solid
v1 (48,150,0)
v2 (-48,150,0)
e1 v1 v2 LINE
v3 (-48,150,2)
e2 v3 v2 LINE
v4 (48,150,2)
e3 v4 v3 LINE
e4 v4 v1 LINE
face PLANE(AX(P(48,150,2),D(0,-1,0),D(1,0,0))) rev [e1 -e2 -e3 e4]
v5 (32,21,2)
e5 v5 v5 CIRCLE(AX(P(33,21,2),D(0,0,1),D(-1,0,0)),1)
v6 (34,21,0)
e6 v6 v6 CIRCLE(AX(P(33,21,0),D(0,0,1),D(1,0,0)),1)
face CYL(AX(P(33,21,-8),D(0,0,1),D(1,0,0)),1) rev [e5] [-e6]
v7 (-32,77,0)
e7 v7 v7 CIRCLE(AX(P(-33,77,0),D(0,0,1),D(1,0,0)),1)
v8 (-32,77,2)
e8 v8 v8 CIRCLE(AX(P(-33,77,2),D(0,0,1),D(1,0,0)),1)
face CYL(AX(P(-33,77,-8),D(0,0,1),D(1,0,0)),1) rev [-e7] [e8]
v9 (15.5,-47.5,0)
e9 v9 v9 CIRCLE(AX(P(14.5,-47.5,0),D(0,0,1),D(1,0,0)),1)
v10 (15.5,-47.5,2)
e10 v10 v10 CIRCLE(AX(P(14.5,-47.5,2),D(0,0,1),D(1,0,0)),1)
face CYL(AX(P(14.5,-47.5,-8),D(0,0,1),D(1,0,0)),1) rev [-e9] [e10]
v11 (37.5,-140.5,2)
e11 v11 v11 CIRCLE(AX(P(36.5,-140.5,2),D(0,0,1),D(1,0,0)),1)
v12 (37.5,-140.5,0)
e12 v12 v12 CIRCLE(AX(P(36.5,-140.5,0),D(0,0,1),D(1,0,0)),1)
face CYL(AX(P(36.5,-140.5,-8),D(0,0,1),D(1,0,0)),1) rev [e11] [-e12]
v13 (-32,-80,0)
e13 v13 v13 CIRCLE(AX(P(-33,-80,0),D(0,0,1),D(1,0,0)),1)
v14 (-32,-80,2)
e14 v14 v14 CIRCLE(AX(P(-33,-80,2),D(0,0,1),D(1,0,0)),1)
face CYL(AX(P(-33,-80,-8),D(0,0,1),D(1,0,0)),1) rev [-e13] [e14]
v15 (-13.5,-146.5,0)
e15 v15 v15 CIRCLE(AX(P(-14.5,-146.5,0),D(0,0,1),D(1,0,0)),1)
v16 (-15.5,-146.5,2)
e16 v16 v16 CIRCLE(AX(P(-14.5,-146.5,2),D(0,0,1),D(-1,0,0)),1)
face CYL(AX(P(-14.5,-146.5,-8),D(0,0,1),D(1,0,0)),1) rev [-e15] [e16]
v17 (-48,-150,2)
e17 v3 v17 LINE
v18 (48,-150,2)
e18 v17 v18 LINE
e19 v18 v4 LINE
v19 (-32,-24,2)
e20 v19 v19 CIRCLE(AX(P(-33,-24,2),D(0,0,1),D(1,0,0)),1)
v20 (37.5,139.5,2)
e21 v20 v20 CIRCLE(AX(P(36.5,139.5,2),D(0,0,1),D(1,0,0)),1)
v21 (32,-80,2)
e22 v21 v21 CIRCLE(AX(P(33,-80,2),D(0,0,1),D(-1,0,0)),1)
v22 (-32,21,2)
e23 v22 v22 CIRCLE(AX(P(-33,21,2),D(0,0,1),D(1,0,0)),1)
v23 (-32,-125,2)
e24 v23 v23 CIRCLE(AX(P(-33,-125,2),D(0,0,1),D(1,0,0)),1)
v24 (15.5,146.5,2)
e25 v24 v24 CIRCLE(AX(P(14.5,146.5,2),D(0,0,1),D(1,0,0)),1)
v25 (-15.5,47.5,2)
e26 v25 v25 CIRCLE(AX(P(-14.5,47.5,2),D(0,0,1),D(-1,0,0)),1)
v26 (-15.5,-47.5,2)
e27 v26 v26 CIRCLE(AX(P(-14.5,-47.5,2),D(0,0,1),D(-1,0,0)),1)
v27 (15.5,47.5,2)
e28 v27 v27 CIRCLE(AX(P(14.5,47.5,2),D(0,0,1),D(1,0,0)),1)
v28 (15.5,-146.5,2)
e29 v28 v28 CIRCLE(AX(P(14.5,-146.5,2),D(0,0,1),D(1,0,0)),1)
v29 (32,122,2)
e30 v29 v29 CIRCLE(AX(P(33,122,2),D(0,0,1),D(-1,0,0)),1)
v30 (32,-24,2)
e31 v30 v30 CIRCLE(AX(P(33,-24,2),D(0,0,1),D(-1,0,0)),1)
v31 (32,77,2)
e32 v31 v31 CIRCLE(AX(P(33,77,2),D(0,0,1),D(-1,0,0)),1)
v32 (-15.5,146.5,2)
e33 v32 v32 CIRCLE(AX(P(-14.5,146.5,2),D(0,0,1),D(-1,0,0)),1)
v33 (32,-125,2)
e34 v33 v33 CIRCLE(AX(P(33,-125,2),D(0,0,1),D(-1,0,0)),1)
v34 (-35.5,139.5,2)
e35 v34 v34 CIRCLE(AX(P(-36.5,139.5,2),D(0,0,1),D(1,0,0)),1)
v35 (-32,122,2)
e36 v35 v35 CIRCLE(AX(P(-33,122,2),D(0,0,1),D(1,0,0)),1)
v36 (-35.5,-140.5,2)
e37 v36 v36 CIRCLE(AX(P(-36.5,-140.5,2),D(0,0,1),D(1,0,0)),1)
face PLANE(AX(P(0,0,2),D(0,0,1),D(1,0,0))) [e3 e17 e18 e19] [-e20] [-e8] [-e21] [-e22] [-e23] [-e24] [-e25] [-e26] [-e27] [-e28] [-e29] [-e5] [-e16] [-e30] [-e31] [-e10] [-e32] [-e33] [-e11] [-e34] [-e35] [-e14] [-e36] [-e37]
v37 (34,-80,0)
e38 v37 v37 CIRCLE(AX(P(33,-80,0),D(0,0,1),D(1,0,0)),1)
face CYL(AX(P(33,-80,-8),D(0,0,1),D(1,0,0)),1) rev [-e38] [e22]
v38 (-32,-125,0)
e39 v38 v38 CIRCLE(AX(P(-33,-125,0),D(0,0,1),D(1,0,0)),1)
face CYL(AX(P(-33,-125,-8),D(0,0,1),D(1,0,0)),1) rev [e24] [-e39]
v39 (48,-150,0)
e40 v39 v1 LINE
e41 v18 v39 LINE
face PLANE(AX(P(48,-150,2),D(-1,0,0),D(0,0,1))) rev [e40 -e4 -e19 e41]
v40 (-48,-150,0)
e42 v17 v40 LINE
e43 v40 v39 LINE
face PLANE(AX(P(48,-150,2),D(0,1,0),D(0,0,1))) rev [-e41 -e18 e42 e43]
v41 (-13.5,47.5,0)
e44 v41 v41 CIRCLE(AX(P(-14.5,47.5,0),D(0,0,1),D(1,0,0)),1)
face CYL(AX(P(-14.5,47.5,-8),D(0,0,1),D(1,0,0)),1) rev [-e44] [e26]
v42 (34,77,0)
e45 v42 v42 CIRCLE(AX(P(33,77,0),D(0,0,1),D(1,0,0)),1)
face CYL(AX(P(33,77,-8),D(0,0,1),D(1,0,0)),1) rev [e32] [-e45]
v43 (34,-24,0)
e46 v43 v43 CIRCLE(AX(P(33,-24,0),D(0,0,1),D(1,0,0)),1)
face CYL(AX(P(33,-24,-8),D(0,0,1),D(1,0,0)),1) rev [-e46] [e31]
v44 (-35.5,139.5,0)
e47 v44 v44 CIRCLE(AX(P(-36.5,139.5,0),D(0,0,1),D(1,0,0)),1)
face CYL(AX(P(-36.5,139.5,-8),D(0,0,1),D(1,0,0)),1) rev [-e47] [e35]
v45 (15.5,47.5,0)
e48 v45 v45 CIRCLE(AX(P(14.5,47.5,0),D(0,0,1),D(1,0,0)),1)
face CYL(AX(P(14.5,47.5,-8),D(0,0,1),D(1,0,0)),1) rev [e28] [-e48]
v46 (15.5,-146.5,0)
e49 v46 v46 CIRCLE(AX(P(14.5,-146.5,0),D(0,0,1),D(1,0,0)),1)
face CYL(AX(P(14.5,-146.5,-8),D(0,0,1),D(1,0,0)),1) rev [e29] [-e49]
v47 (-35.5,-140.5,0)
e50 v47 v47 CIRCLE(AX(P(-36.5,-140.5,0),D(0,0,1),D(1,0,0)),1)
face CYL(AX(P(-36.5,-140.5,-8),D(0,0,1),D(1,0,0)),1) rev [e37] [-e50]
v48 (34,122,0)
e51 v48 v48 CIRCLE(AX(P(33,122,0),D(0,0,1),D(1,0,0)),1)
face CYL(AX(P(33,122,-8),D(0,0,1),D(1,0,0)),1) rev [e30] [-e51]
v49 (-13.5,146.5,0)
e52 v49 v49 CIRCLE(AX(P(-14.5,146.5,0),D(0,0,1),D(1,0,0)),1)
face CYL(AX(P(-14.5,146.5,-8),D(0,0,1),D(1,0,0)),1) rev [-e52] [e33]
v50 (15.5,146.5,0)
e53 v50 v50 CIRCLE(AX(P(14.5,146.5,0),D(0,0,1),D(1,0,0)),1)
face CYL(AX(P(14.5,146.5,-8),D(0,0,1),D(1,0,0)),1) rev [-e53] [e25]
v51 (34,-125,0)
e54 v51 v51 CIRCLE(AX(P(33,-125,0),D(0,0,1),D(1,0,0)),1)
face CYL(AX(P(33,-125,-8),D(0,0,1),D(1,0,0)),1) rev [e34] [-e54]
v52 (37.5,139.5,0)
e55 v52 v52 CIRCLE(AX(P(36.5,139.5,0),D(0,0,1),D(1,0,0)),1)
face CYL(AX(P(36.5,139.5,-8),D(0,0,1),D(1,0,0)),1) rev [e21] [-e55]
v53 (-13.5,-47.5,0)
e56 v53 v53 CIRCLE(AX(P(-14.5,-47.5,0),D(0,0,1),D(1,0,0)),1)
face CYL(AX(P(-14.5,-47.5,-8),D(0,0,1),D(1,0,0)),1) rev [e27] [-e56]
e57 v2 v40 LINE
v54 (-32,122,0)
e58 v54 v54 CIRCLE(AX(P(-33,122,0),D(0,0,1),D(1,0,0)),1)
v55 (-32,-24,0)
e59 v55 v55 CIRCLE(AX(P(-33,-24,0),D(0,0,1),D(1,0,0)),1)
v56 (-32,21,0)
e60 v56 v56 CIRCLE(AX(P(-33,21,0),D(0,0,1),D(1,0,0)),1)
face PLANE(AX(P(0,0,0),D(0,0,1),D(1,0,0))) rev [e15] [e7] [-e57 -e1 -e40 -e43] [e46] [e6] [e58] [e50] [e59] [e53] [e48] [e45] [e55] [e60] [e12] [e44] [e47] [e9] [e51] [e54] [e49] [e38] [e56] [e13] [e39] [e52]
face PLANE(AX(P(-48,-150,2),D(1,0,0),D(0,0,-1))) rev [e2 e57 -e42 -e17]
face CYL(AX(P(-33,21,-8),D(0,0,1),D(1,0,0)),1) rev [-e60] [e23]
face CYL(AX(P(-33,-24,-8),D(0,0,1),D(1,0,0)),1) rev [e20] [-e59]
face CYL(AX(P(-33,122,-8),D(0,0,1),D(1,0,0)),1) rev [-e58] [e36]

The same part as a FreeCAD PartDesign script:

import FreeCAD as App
import Part
import Sketcher
from FreeCAD import Vector


def add_polygon(sketch, points):
    """Adds a closed chain of lines whose ends are joined by coincident constraints."""
    first, n = sketch.GeometryCount, len(points)
    for a, b in zip(points, points[1:] + points[:1]):
        sketch.addGeometry(Part.LineSegment(App.Vector(*a, 0), App.Vector(*b, 0)), False)
    for i in range(n):
        sketch.addConstraint(Sketcher.Constraint("Coincident", first + i, 2, first + (i + 1) % n, 1))

doc = App.newDocument("Part")
body = doc.addObject("PartDesign::Body", "Body")

# Sketch on XY plane
sketch1 = body.newObject("Sketcher::SketchObject", "Sketch")
sketch1.AttachmentSupport = (doc.getObject("XY_Plane"), [""])
sketch1.MapMode = "FlatFace"
add_polygon(sketch1, [(-48, 150), (-48, -150), (48, -150), (48, 150)])  # lines 0-3
sketch1.addConstraint([
    Sketcher.Constraint("Vertical", 0),
    Sketcher.Constraint("Horizontal", 1),
    Sketcher.Constraint("Vertical", 2),
    Sketcher.Constraint("Horizontal", 3),
    Sketcher.Constraint("Symmetric", 0, 2, 2, 2, -1, 1),
    Sketcher.Constraint("DistanceX", 1, 1, 1, 2, 96.0),
    Sketcher.Constraint("DistanceY", 0, 2, 0, 1, 300.0),
])
pad1 = body.newObject("PartDesign::Pad", "Pad")
pad1.Profile = sketch1
pad1.Length = 2

# Sketch on XY plane
sketch2 = body.newObject("Sketcher::SketchObject", "Sketch001")
sketch2.AttachmentSupport = (doc.getObject("XY_Plane"), [""])
sketch2.MapMode = "FlatFace"
sketch2.AttachmentOffset = App.Placement(Vector(0, 0, 2), App.Rotation())
sketch2.addGeometry([
    Part.Circle(Vector(-33, 122, 0), Vector(0, 0, 1), 1),  # 0
    Part.Circle(Vector(-33, 77, 0), Vector(0, 0, 1), 1),  # 1
    Part.Circle(Vector(-33, -125, 0), Vector(0, 0, 1), 1),  # 2
    Part.Circle(Vector(14.5, -146.5, 0), Vector(0, 0, 1), 1),  # 3
    Part.Circle(Vector(-14.5, -146.5, 0), Vector(0, 0, 1), 1),  # 4
    Part.Circle(Vector(-14.5, -47.5, 0), Vector(0, 0, 1), 1),  # 5
    Part.Circle(Vector(-14.5, 47.5, 0), Vector(0, 0, 1), 1),  # 6
    Part.Circle(Vector(-14.5, 146.5, 0), Vector(0, 0, 1), 1),  # 7
    Part.Circle(Vector(14.5, 146.5, 0), Vector(0, 0, 1), 1),  # 8
    Part.Circle(Vector(-33, -80, 0), Vector(0, 0, 1), 1),  # 9
    Part.Circle(Vector(-33, -24, 0), Vector(0, 0, 1), 1),  # 10
    Part.Circle(Vector(-33, 21, 0), Vector(0, 0, 1), 1),  # 11
    Part.Circle(Vector(33, 21, 0), Vector(0, 0, 1), 1),  # 12
    Part.Circle(Vector(33, -24, 0), Vector(0, 0, 1), 1),  # 13
    Part.Circle(Vector(33, -80, 0), Vector(0, 0, 1), 1),  # 14
    Part.Circle(Vector(33, -125, 0), Vector(0, 0, 1), 1),  # 15
    Part.Circle(Vector(33, 77, 0), Vector(0, 0, 1), 1),  # 16
    Part.Circle(Vector(33, 122, 0), Vector(0, 0, 1), 1),  # 17
    Part.Circle(Vector(14.5, -47.5, 0), Vector(0, 0, 1), 1),  # 18
    Part.Circle(Vector(14.5, 47.5, 0), Vector(0, 0, 1), 1),  # 19
], False)
sketch2.addConstraint([
    Sketcher.Constraint("Equal", 0, 1),
    Sketcher.Constraint("Equal", 1, 2),
    Sketcher.Constraint("Equal", 2, 3),
    Sketcher.Constraint("Equal", 3, 4),
    Sketcher.Constraint("Equal", 4, 5),
    Sketcher.Constraint("Equal", 5, 6),
    Sketcher.Constraint("Equal", 6, 7),
    Sketcher.Constraint("Equal", 7, 8),
    Sketcher.Constraint("Equal", 8, 9),
    Sketcher.Constraint("Equal", 9, 10),
    Sketcher.Constraint("Equal", 10, 11),
    Sketcher.Constraint("Equal", 11, 12),
    Sketcher.Constraint("Equal", 12, 13),
    Sketcher.Constraint("Equal", 13, 14),
    Sketcher.Constraint("Equal", 14, 15),
    Sketcher.Constraint("Equal", 15, 16),
    Sketcher.Constraint("Equal", 16, 17),
    Sketcher.Constraint("Equal", 17, 18),
    Sketcher.Constraint("Equal", 18, 19),
    Sketcher.Constraint("Symmetric", 3, 3, 7, 3, -1, 1),
    Sketcher.Constraint("Symmetric", 4, 3, 8, 3, -1, 1),
    Sketcher.Constraint("Symmetric", 6, 3, 18, 3, -1, 1),
    Sketcher.Constraint("Symmetric", 5, 3, 19, 3, -1, 1),
    Sketcher.Constraint("Symmetric", 3, 3, 4, 3, -2),
    Sketcher.Constraint("Symmetric", 11, 3, 12, 3, -2),
    Sketcher.Constraint("Symmetric", 10, 3, 13, 3, -2),
    Sketcher.Constraint("Symmetric", 9, 3, 14, 3, -2),
    Sketcher.Constraint("Symmetric", 2, 3, 15, 3, -2),
    Sketcher.Constraint("Symmetric", 1, 3, 16, 3, -2),
    Sketcher.Constraint("Symmetric", 0, 3, 17, 3, -2),
    Sketcher.Constraint("Symmetric", 5, 3, 18, 3, -2),
    Sketcher.Constraint("Vertical", 0, 3, 1, 3),
    Sketcher.Constraint("Vertical", 1, 3, 2, 3),
    Sketcher.Constraint("Vertical", 4, 3, 5, 3),
    Sketcher.Constraint("Vertical", 2, 3, 9, 3),
    Sketcher.Constraint("Vertical", 9, 3, 10, 3),
    Sketcher.Constraint("Vertical", 10, 3, 11, 3),
    Sketcher.Constraint("Diameter", 0, 2.0),
    Sketcher.Constraint("DistanceX", 0, 3, -1, 1, 33.0),
    Sketcher.Constraint("DistanceY", -1, 1, 0, 3, 122.0),
    Sketcher.Constraint("DistanceY", -1, 1, 1, 3, 77.0),
    Sketcher.Constraint("DistanceY", 2, 3, -1, 1, 125.0),
    Sketcher.Constraint("DistanceY", 9, 3, -1, 1, 80.0),
    Sketcher.Constraint("DistanceY", 10, 3, -1, 1, 24.0),
    Sketcher.Constraint("DistanceY", -1, 1, 11, 3, 21.0),
    Sketcher.Constraint("DistanceX", 4, 3, 3, 3, 29.0),
    Sketcher.Constraint("DistanceY", 4, 3, 5, 3, 99.0),
    Sketcher.Constraint("DistanceY", 5, 3, 6, 3, 95.0),
])
pocket1 = body.newObject("PartDesign::Pocket", "Pocket")
pocket1.Profile = sketch2
pocket1.Length = 10

# Sketch on XY plane
sketch3 = body.newObject("Sketcher::SketchObject", "Sketch002")
sketch3.AttachmentSupport = (doc.getObject("XY_Plane"), [""])
sketch3.MapMode = "FlatFace"
sketch3.AttachmentOffset = App.Placement(Vector(0, 0, 2), App.Rotation())
sketch3.addGeometry([
    Part.Circle(Vector(-36.5, 139.5, 0), Vector(0, 0, 1), 1),
    Part.Circle(Vector(36.5, 139.5, 0), Vector(0, 0, 1), 1),
    Part.Circle(Vector(-36.5, -140.5, 0), Vector(0, 0, 1), 1),
    Part.Circle(Vector(36.5, -140.5, 0), Vector(0, 0, 1), 1),
], False)
sketch3.addConstraint([
    Sketcher.Constraint("Equal", 0, 1),
    Sketcher.Constraint("Equal", 1, 2),
    Sketcher.Constraint("Equal", 2, 3),
    Sketcher.Constraint("Symmetric", 0, 3, 1, 3, -2),
    Sketcher.Constraint("Symmetric", 2, 3, 3, 3, -2),
    Sketcher.Constraint("Vertical", 0, 3, 2, 3),
    Sketcher.Constraint("Diameter", 0, 2.0),
    Sketcher.Constraint("DistanceX", 0, 3, 1, 3, 73.0),
    Sketcher.Constraint("DistanceY", 2, 3, 0, 3, 280.0),
    Sketcher.Constraint("DistanceY", -1, 1, 0, 3, 139.5),
])
pocket2 = body.newObject("PartDesign::Pocket", "Pocket001")
pocket2.Profile = sketch3
pocket2.Length = 10

doc.recompute()
